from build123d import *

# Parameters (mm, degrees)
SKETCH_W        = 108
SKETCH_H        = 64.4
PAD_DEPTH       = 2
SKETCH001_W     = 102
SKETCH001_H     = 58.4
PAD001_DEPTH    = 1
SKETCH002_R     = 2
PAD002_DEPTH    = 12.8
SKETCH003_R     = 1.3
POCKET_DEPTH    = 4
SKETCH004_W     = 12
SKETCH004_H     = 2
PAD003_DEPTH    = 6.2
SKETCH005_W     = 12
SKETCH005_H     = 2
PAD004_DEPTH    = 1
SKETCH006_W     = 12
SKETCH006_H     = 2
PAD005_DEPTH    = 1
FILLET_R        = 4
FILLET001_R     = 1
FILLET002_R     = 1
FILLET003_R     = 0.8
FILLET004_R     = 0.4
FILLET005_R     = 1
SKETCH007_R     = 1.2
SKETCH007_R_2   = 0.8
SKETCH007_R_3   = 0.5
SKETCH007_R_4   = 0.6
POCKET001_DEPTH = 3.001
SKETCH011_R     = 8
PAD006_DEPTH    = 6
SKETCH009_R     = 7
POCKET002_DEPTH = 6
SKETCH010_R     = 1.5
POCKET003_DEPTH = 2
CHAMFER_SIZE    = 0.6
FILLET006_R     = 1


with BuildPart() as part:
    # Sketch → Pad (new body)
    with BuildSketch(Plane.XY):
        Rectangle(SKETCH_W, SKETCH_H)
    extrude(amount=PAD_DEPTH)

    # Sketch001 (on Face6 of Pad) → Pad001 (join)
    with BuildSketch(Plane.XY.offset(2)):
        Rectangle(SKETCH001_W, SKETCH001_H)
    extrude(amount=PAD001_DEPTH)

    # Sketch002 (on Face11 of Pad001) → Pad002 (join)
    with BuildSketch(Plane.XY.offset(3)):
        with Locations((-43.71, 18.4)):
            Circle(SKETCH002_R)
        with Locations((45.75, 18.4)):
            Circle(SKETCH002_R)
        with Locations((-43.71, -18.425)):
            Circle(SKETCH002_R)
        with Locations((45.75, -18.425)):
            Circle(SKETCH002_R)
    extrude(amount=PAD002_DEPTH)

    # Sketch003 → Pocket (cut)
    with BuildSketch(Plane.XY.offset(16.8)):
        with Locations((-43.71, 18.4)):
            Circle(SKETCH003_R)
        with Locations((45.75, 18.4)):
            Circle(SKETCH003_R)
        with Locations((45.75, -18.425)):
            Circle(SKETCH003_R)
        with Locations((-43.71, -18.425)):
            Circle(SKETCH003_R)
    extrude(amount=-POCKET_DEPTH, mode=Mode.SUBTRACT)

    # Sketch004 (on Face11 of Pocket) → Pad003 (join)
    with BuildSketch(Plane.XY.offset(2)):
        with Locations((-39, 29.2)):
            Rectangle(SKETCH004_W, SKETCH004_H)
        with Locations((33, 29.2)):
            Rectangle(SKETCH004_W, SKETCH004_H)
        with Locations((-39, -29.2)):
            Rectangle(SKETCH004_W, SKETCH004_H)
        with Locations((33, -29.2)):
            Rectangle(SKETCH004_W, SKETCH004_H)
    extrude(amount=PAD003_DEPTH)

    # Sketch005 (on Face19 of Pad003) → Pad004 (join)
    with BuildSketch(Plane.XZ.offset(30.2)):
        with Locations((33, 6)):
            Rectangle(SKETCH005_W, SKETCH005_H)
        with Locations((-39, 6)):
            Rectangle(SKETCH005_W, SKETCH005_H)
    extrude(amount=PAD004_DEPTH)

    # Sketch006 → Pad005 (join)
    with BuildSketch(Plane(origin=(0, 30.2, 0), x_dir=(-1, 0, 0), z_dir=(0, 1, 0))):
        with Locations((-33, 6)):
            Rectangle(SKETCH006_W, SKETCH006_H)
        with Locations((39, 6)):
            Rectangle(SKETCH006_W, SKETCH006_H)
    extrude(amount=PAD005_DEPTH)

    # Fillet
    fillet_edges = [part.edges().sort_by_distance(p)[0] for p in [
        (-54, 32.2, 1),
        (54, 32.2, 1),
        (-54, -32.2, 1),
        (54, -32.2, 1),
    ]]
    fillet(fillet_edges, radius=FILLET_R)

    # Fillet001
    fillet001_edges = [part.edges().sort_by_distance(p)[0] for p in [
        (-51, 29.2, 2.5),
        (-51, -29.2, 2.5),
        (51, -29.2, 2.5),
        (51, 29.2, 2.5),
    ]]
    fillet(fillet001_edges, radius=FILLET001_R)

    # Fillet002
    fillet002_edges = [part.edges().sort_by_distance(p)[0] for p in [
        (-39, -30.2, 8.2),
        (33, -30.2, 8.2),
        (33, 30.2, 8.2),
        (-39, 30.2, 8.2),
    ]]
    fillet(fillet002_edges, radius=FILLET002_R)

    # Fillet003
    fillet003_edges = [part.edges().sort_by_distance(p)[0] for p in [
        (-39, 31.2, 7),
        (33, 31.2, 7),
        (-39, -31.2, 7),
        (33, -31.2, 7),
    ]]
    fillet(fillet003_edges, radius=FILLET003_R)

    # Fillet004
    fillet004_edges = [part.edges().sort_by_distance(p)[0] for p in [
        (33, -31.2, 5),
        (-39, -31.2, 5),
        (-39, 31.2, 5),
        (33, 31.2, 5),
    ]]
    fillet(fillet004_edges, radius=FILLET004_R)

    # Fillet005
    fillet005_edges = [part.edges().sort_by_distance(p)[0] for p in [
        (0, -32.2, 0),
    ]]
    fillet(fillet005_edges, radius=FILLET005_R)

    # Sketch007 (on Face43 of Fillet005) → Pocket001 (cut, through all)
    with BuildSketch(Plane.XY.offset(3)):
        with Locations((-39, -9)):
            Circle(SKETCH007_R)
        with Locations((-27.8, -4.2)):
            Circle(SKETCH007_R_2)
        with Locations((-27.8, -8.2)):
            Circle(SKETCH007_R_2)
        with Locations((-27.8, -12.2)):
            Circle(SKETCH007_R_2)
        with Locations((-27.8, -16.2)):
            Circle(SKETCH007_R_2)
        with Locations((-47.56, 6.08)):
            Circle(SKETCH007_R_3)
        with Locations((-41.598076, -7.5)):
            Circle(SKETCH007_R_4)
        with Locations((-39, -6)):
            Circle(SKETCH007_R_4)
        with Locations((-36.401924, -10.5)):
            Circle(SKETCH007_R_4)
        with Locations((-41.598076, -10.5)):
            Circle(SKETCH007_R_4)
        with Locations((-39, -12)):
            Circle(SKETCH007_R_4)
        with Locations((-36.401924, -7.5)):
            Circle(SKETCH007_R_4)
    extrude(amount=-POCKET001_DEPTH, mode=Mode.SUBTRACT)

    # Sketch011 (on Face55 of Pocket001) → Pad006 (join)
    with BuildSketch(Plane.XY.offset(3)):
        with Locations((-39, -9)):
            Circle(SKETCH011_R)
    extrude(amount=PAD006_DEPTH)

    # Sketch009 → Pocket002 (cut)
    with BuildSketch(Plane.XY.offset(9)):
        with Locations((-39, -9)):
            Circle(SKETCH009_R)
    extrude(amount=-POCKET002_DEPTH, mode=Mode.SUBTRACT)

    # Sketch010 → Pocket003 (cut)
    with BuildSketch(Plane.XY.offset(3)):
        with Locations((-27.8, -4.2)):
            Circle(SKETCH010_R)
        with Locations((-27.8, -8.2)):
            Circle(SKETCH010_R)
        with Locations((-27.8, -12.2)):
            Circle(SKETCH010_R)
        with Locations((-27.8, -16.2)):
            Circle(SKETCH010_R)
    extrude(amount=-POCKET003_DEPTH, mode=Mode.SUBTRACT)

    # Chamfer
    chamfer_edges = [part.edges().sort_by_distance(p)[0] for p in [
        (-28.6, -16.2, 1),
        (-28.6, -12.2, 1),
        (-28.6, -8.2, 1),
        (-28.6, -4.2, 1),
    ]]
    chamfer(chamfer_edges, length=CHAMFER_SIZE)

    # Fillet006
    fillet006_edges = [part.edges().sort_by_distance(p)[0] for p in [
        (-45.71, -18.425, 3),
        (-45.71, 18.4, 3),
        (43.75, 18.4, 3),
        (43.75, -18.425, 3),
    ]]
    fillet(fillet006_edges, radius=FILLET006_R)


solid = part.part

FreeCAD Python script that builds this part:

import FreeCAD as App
import Part
import Sketcher
from FreeCAD import Vector
Q = App.Units.Quantity


def edges_at(feature, points):
    """Names of the edges that pass closest to the given points."""
    edges = feature.Shape.Edges
    near = lambda p: min(range(len(edges)), key=lambda i: edges[i].distToShape(Part.Vertex(*p))[0])
    return sorted({f"Edge{near(p) + 1}" for p in points})


def add_polygon(sketch, points):
    """Adds a closed chain of lines whose ends are joined by coincident constraints."""
    first, n = sketch.GeometryCount, len(points)
    for a, b in zip(points, points[1:] + points[:1]):
        sketch.addGeometry(Part.LineSegment(App.Vector(*a, 0), App.Vector(*b, 0)), False)
    for i in range(n):
        sketch.addConstraint(Sketcher.Constraint("Coincident", first + i, 2, first + (i + 1) % n, 1))

doc = App.newDocument("Part")
body = doc.addObject("PartDesign::Body", "Body")

sketch1 = body.newObject("Sketcher::SketchObject", "Sketch")
sketch1.AttachmentSupport = (doc.getObject("XY_Plane"), [""])
sketch1.MapMode = "FlatFace"
add_polygon(sketch1, [(-54, 32), (-54, -32), (54, -32), (54, 32)])
sketch1.addConstraint([
    Sketcher.Constraint("Vertical", 0),
    Sketcher.Constraint("Horizontal", 1),
    Sketcher.Constraint("Vertical", 2),
    Sketcher.Constraint("Horizontal", 3),
    Sketcher.Constraint("Symmetric", 0, 2, 2, 2, -1, 1),
    Sketcher.Constraint("DistanceX", 1, 1, 1, 2, Q("108 mm")),
    Sketcher.Constraint("DistanceY", 0, 2, 0, 1, Q("64.4 mm")),
])
pad1 = body.newObject("PartDesign::Pad", "Pad")
pad1.Profile = sketch1
pad1.Length = 2

sketch2 = body.newObject("Sketcher::SketchObject", "Sketch001")
sketch2.AttachmentSupport = (doc.getObject("XY_Plane"), [""])
sketch2.MapMode = "FlatFace"
sketch2.AttachmentOffset = App.Placement(Vector(0, 0, 2), App.Rotation())
add_polygon(sketch2, [(-51, 29), (-51, -29), (51, -29), (51, 29)])
sketch2.addConstraint([
    Sketcher.Constraint("Vertical", 0),
    Sketcher.Constraint("Horizontal", 1),
    Sketcher.Constraint("Vertical", 2),
    Sketcher.Constraint("Horizontal", 3),
    Sketcher.Constraint("Symmetric", 0, 2, 2, 2, -1, 1),
    Sketcher.Constraint("DistanceX", 1, 1, 1, 2, Q("102 mm")),
    Sketcher.Constraint("DistanceY", 0, 2, 0, 1, Q("58.4 mm")),
])
pad2 = body.newObject("PartDesign::Pad", "Pad001")
pad2.Profile = sketch2
pad2.Length = 1

sketch3 = body.newObject("Sketcher::SketchObject", "Sketch002")
sketch3.AttachmentSupport = (doc.getObject("XY_Plane"), [""])
sketch3.MapMode = "FlatFace"
sketch3.AttachmentOffset = App.Placement(Vector(0, 0, 3), App.Rotation())
sketch3.addGeometry([
    Part.Circle(Vector(-43.7, 18.4, 0), Vector(0, 0, 1), 2),
    Part.Circle(Vector(45.8, 18.4, 0), Vector(0, 0, 1), 2),
    Part.Circle(Vector(-43.7, -18.4, 0), Vector(0, 0, 1), 2),
    Part.Circle(Vector(45.8, -18.4, 0), Vector(0, 0, 1), 2),
], False)
sketch3.addConstraint([
    Sketcher.Constraint("Equal", 0, 1),
    Sketcher.Constraint("Equal", 1, 2),
    Sketcher.Constraint("Equal", 2, 3),
    Sketcher.Constraint("Horizontal", 0, 3, 1, 3),
    Sketcher.Constraint("Horizontal", 2, 3, 3, 3),
    Sketcher.Constraint("Vertical", 0, 3, 2, 3),
    Sketcher.Constraint("Vertical", 1, 3, 3, 3),
    Sketcher.Constraint("Diameter", 0, Q("4 mm")),
    Sketcher.Constraint("DistanceY", -1, 1, 0, 3, Q("18.4 mm")),
    Sketcher.Constraint("DistanceX", 0, 3, -1, 1, Q("43.71 mm")),
    Sketcher.Constraint("DistanceX", -1, 1, 1, 3, Q("45.75 mm")),
    Sketcher.Constraint("DistanceY", 2, 3, -1, 1, Q("18.425 mm")),
])
pad3 = body.newObject("PartDesign::Pad", "Pad002")
pad3.Profile = sketch3
pad3.Length = 12.8

sketch4 = body.newObject("Sketcher::SketchObject", "Sketch003")
sketch4.AttachmentSupport = (doc.getObject("XY_Plane"), [""])
sketch4.MapMode = "FlatFace"
sketch4.AttachmentOffset = App.Placement(Vector(0, 0, 16.8), App.Rotation())
sketch4.addGeometry([
    Part.Circle(Vector(-43.7, 18.4, 0), Vector(0, 0, 1), 1.3),
    Part.Circle(Vector(45.8, 18.4, 0), Vector(0, 0, 1), 1.3),
    Part.Circle(Vector(45.8, -18.4, 0), Vector(0, 0, 1), 1.3),
    Part.Circle(Vector(-43.7, -18.4, 0), Vector(0, 0, 1), 1.3),
], False)
sketch4.addConstraint([
    Sketcher.Constraint("Equal", 0, 1),
    Sketcher.Constraint("Equal", 1, 2),
    Sketcher.Constraint("Equal", 2, 3),
    Sketcher.Constraint("Horizontal", 0, 3, 1, 3),
    Sketcher.Constraint("Horizontal", 2, 3, 3, 3),
    Sketcher.Constraint("Vertical", 1, 3, 2, 3),
    Sketcher.Constraint("Vertical", 0, 3, 3, 3),
    Sketcher.Constraint("Diameter", 0, Q("2.6 mm")),
    Sketcher.Constraint("DistanceY", -1, 1, 0, 3, Q("18.4 mm")),
    Sketcher.Constraint("DistanceX", 0, 3, -1, 1, Q("43.71 mm")),
    Sketcher.Constraint("DistanceX", -1, 1, 1, 3, Q("45.75 mm")),
    Sketcher.Constraint("DistanceY", 2, 3, -1, 1, Q("18.425 mm")),
])
pocket1 = body.newObject("PartDesign::Pocket", "Pocket")
pocket1.Profile = sketch4
pocket1.Length = 4

sketch5 = body.newObject("Sketcher::SketchObject", "Sketch004")
sketch5.AttachmentSupport = (doc.getObject("XY_Plane"), [""])
sketch5.MapMode = "FlatFace"
sketch5.AttachmentOffset = App.Placement(Vector(0, 0, 2), App.Rotation())
add_polygon(sketch5, [(-45, 30.2), (-45, 28.2), (-33, 28.2), (-33, 30.2)])
add_polygon(sketch5, [(27, 30.2), (27, 28.2), (39, 28.2), (39, 30.2)])
add_polygon(sketch5, [(-45, -28.2), (-45, -30.2), (-33, -30.2), (-33, -28.2)])
add_polygon(sketch5, [(27, -28.2), (27, -30.2), (39, -30.2), (39, -28.2)])
sketch5.addConstraint([
    Sketcher.Constraint("Vertical", 0),
    Sketcher.Constraint("Horizontal", 1),
    Sketcher.Constraint("Vertical", 2),
    Sketcher.Constraint("Horizontal", 3),
    Sketcher.Constraint("Vertical", 4),
    Sketcher.Constraint("Horizontal", 5),
    Sketcher.Constraint("Vertical", 6),
    Sketcher.Constraint("Horizontal", 7),
    Sketcher.Constraint("Vertical", 8),
    Sketcher.Constraint("Horizontal", 9),
    Sketcher.Constraint("Vertical", 10),
    Sketcher.Constraint("Horizontal", 11),
    Sketcher.Constraint("Vertical", 12),
    Sketcher.Constraint("Horizontal", 13),
    Sketcher.Constraint("Vertical", 14),
    Sketcher.Constraint("Horizontal", 15),
    Sketcher.Constraint("Symmetric", 3, 2, 8, 2, -1),
    Sketcher.Constraint("Symmetric", 1, 2, 10, 2, -1),
    Sketcher.Constraint("Symmetric", 7, 2, 12, 2, -1),
    Sketcher.Constraint("Symmetric", 5, 2, 14, 2, -1),
    Sketcher.Constraint("Horizontal", 1, 2, 4, 2),
    Sketcher.Constraint("Horizontal", 3, 2, 6, 2),
    Sketcher.Constraint("Equal", 3, 5),
    Sketcher.Constraint("DistanceX", 1, 1, 1, 2, Q("12 mm")),
    Sketcher.Constraint("DistanceY", 0, 2, 0, 1, Q("2 mm")),
    Sketcher.Constraint("DistanceX", 0, 2, -1, 1, Q("45 mm")),
    Sketcher.Constraint("DistanceX", -1, 1, 4, 2, Q("27 mm")),
    Sketcher.Constraint("DistanceY", -1, 1, 0, 2, Q("28.2 mm")),
])
pad4 = body.newObject("PartDesign::Pad", "Pad003")
pad4.Profile = sketch5
pad4.Length = 6.2

sketch6 = body.newObject("Sketcher::SketchObject", "Sketch005")
sketch6.AttachmentSupport = (doc.getObject("XZ_Plane"), [""])
sketch6.MapMode = "FlatFace"
sketch6.AttachmentOffset = App.Placement(Vector(0, 0, 30.2), App.Rotation())
add_polygon(sketch6, [(27, 7), (27, 5), (39, 5), (39, 7)])
add_polygon(sketch6, [(-45, 7), (-45, 5), (-33, 5), (-33, 7)])
sketch6.addConstraint([
    Sketcher.Constraint("Vertical", 0),
    Sketcher.Constraint("Horizontal", 1),
    Sketcher.Constraint("Vertical", 2),
    Sketcher.Constraint("Horizontal", 3),
    Sketcher.Constraint("Vertical", 4),
    Sketcher.Constraint("Horizontal", 5),
    Sketcher.Constraint("Vertical", 6),
    Sketcher.Constraint("Horizontal", 7),
    Sketcher.Constraint("Horizontal", 1, 2, 4, 2),
    Sketcher.Constraint("Horizontal", 3, 2, 6, 2),
    Sketcher.Constraint("Equal", 3, 5),
    Sketcher.Constraint("DistanceX", 1, 1, 1, 2, Q("12 mm")),
    Sketcher.Constraint("DistanceY", 0, 2, 0, 1, Q("2 mm")),
    Sketcher.Constraint("DistanceX", -1, 1, 0, 2, Q("27 mm")),
    Sketcher.Constraint("DistanceY", -1, 1, 0, 2, Q("5 mm")),
    Sketcher.Constraint("DistanceX", 4, 2, -1, 1, Q("45 mm")),
])
pad5 = body.newObject("PartDesign::Pad", "Pad004")
pad5.Profile = sketch6
pad5.Length = 1

sketch7 = body.newObject("Sketcher::SketchObject", "Sketch006")
sketch7.AttachmentSupport = (doc.getObject("XZ_Plane"), [""])
sketch7.MapMode = "FlatFace"
sketch7.AttachmentOffset = App.Placement(Vector(0, 0, -30.2), App.Rotation())
add_polygon(sketch7, [(39, 7), (39, 5), (27, 5), (27, 7)])
add_polygon(sketch7, [(-33, 7), (-33, 5), (-45, 5), (-45, 7)])
sketch7.addConstraint([
    Sketcher.Constraint("Vertical", 0),
    Sketcher.Constraint("Horizontal", 1),
    Sketcher.Constraint("Vertical", 2),
    Sketcher.Constraint("Horizontal", 3),
    Sketcher.Constraint("Vertical", 4),
    Sketcher.Constraint("Horizontal", 5),
    Sketcher.Constraint("Vertical", 6),
    Sketcher.Constraint("Horizontal", 7),
    Sketcher.Constraint("Horizontal", 1, 2, 4, 2),
    Sketcher.Constraint("Horizontal", 3, 2, 6, 2),
    Sketcher.Constraint("Equal", 3, 5),
    Sketcher.Constraint("DistanceX", 1, 2, 1, 1, Q("12 mm")),
    Sketcher.Constraint("DistanceY", 0, 2, 0, 1, Q("2 mm")),
    Sketcher.Constraint("DistanceX", -1, 1, 0, 2, Q("39 mm")),
    Sketcher.Constraint("DistanceY", -1, 1, 0, 2, Q("5 mm")),
    Sketcher.Constraint("DistanceX", 4, 2, -1, 1, Q("33 mm")),
])
pad6 = body.newObject("PartDesign::Pad", "Pad005")
pad6.Profile = sketch7
pad6.Length = 1
pad6.Reversed = True
doc.recompute()

fillet = body.newObject("PartDesign::Fillet", "Fillet")
fillet.Base = (pad6, edges_at(pad6, [
    (-54, 32.2, 1),
    (54, 32.2, 1),
    (-54, -32.2, 1),
    (54, -32.2, 1),
]))
fillet.Radius = 4
doc.recompute()

fillet2 = body.newObject("PartDesign::Fillet", "Fillet001")
fillet2.Base = (fillet, edges_at(fillet, [
    (-51, 29.2, 2.5),
    (-51, -29.2, 2.5),
    (51, -29.2, 2.5),
    (51, 29.2, 2.5),
]))
fillet2.Radius = 1
doc.recompute()

fillet3 = body.newObject("PartDesign::Fillet", "Fillet002")
fillet3.Base = (fillet2, edges_at(fillet2, [
    (-39, -30.2, 8.2),
    (33, -30.2, 8.2),
    (33, 30.2, 8.2),
    (-39, 30.2, 8.2),
]))
fillet3.Radius = 1
doc.recompute()

fillet4 = body.newObject("PartDesign::Fillet", "Fillet003")
fillet4.Base = (fillet3, edges_at(fillet3, [
    (-39, 31.2, 7),
    (33, 31.2, 7),
    (-39, -31.2, 7),
    (33, -31.2, 7),
]))
fillet4.Radius = 0.8
doc.recompute()

fillet5 = body.newObject("PartDesign::Fillet", "Fillet004")
fillet5.Base = (fillet4, edges_at(fillet4, [
    (33, -31.2, 5),
    (-39, -31.2, 5),
    (-39, 31.2, 5),
    (33, 31.2, 5),
]))
fillet5.Radius = 0.4
doc.recompute()

fillet6 = body.newObject("PartDesign::Fillet", "Fillet005")
fillet6.Base = (fillet5, edges_at(fillet5, [(0, -32.2, 0)]))
fillet6.Radius = 1

sketch8 = body.newObject("Sketcher::SketchObject", "Sketch007")
sketch8.AttachmentSupport = (doc.getObject("XY_Plane"), [""])
sketch8.MapMode = "FlatFace"
sketch8.AttachmentOffset = App.Placement(Vector(0, 0, 3), App.Rotation())
sketch8.addGeometry([
    Part.Circle(Vector(-39, -9, 0), Vector(0, 0, 1), 1.2),
    Part.Circle(Vector(-27.8, -4.2, 0), Vector(0, 0, 1), 0.8),
    Part.Circle(Vector(-27.8, -8.2, 0), Vector(0, 0, 1), 0.8),
    Part.Circle(Vector(-27.8, -12.2, 0), Vector(0, 0, 1), 0.8),
    Part.Circle(Vector(-27.8, -16.2, 0), Vector(0, 0, 1), 0.8),
    Part.Circle(Vector(-47.6, 6.1, 0), Vector(0, 0, 1), 0.5),
    Part.Circle(Vector(-41.6, -7.5, 0), Vector(0, 0, 1), 0.6),
    Part.Circle(Vector(-39, -6, 0), Vector(0, 0, 1), 0.6),
    Part.Circle(Vector(-36.4, -10.5, 0), Vector(0, 0, 1), 0.6),
    Part.Circle(Vector(-41.6, -10.5, 0), Vector(0, 0, 1), 0.6),
    Part.Circle(Vector(-39, -12, 0), Vector(0, 0, 1), 0.6),
    Part.Circle(Vector(-36.4, -7.5, 0), Vector(0, 0, 1), 0.6),
], False)
sketch8.addConstraint([
    Sketcher.Constraint("Equal", 1, 2),
    Sketcher.Constraint("Equal", 2, 3),
    Sketcher.Constraint("Equal", 3, 4),
    Sketcher.Constraint("Equal", 6, 7),
    Sketcher.Constraint("Equal", 7, 8),
    Sketcher.Constraint("Equal", 8, 9),
    Sketcher.Constraint("Equal", 9, 10),
    Sketcher.Constraint("Equal", 10, 11),
    Sketcher.Constraint("Horizontal", 8, 3, 9, 3),
    Sketcher.Constraint("Horizontal", 6, 3, 11, 3),
    Sketcher.Constraint("Vertical", 1, 3, 2, 3),
    Sketcher.Constraint("Vertical", 2, 3, 3, 3),
    Sketcher.Constraint("Vertical", 3, 3, 4, 3),
    Sketcher.Constraint("Vertical", 0, 3, 7, 3),
    Sketcher.Constraint("Vertical", 6, 3, 9, 3),
    Sketcher.Constraint("Vertical", 7, 3, 10, 3),
    Sketcher.Constraint("Vertical", 8, 3, 11, 3),
    Sketcher.Constraint("Diameter", 5, Q("1 mm")),
    Sketcher.Constraint("Diameter", 0, Q("2.4 mm")),
    Sketcher.Constraint("Diameter", 1, Q("1.6 mm")),
    Sketcher.Constraint("Diameter", 6, Q("1.2 mm")),
    Sketcher.Constraint("DistanceX", 0, 3, -1, 1, Q("39 mm")),
    Sketcher.Constraint("DistanceY", 0, 3, -1, 1, Q("9 mm")),
    Sketcher.Constraint("DistanceY", 7, 3, -1, 1, Q("6 mm")),
    Sketcher.Constraint("DistanceY", 10, 3, -1, 1, Q("12 mm")),
    Sketcher.Constraint("DistanceY", 2, 3, 1, 3, Q("4 mm")),
    Sketcher.Constraint("DistanceY", 3, 3, 2, 3, Q("4 mm")),
    Sketcher.Constraint("DistanceY", 4, 3, 3, 3, Q("4 mm")),
    Sketcher.Constraint("DistanceY", 8, 3, 6, 3, Q("3 mm")),
    Sketcher.Constraint("DistanceX", 1, 3, -1, 1, Q("27.8 mm")),
    Sketcher.Constraint("DistanceY", 1, 3, -1, 1, Q("4.2 mm")),
    Sketcher.Constraint("DistanceY", 6, 3, -1, 1, Q("7.5 mm")),
    Sketcher.Constraint("DistanceX", 5, 3, -1, 1, Q("47.56 mm")),
    Sketcher.Constraint("DistanceY", -1, 1, 5, 3, Q("6.08 mm")),
    Sketcher.Constraint("DistanceX", 6, 3, 8, 3, Q("5.196152 mm")),
    Sketcher.Constraint("DistanceX", 6, 3, -1, 1, Q("41.598076 mm")),
])
pocket2 = body.newObject("PartDesign::Pocket", "Pocket001")
pocket2.Profile = sketch8
pocket2.Type = "ThroughAll"

sketch9 = body.newObject("Sketcher::SketchObject", "Sketch008")
sketch9.AttachmentSupport = (doc.getObject("XY_Plane"), [""])
sketch9.MapMode = "FlatFace"
sketch9.AttachmentOffset = App.Placement(Vector(0, 0, 3), App.Rotation())
sketch9.addGeometry(Part.Circle(Vector(-39, -9, 0), Vector(0, 0, 1), 8), False)
sketch9.addConstraint([
    Sketcher.Constraint("Diameter", 0, Q("16 mm")),
    Sketcher.Constraint("DistanceX", 0, 3, -1, 1, Q("39 mm")),
    Sketcher.Constraint("DistanceY", 0, 3, -1, 1, Q("9 mm")),
])
pad7 = body.newObject("PartDesign::Pad", "Pad006")
pad7.Profile = sketch9
pad7.Length = 6

sketch10 = body.newObject("Sketcher::SketchObject", "Sketch009")
sketch10.AttachmentSupport = (doc.getObject("XY_Plane"), [""])
sketch10.MapMode = "FlatFace"
sketch10.AttachmentOffset = App.Placement(Vector(0, 0, 9), App.Rotation())
sketch10.addGeometry(Part.Circle(Vector(-39, -9, 0), Vector(0, 0, 1), 7), False)
sketch10.addConstraint([
    Sketcher.Constraint("Diameter", 0, Q("14 mm")),
    Sketcher.Constraint("DistanceX", 0, 3, -1, 1, Q("39 mm")),
    Sketcher.Constraint("DistanceY", 0, 3, -1, 1, Q("9 mm")),
])
pocket3 = body.newObject("PartDesign::Pocket", "Pocket002")
pocket3.Profile = sketch10
pocket3.Length = 6

sketch11 = body.newObject("Sketcher::SketchObject", "Sketch010")
sketch11.AttachmentSupport = (doc.getObject("XY_Plane"), [""])
sketch11.MapMode = "FlatFace"
sketch11.AttachmentOffset = App.Placement(Vector(0, 0, 3), App.Rotation())
sketch11.addGeometry([
    Part.Circle(Vector(-27.8, -4.2, 0), Vector(0, 0, 1), 1.5),
    Part.Circle(Vector(-27.8, -8.2, 0), Vector(0, 0, 1), 1.5),
    Part.Circle(Vector(-27.8, -12.2, 0), Vector(0, 0, 1), 1.5),
    Part.Circle(Vector(-27.8, -16.2, 0), Vector(0, 0, 1), 1.5),
], False)
sketch11.addConstraint([
    Sketcher.Constraint("Equal", 0, 1),
    Sketcher.Constraint("Equal", 1, 2),
    Sketcher.Constraint("Equal", 2, 3),
    Sketcher.Constraint("Vertical", 0, 3, 1, 3),
    Sketcher.Constraint("Vertical", 1, 3, 2, 3),
    Sketcher.Constraint("Vertical", 2, 3, 3, 3),
    Sketcher.Constraint("Diameter", 0, Q("3 mm")),
    Sketcher.Constraint("DistanceY", 1, 3, 0, 3, Q("4 mm")),
    Sketcher.Constraint("DistanceY", 2, 3, 1, 3, Q("4 mm")),
    Sketcher.Constraint("DistanceY", 3, 3, 2, 3, Q("4 mm")),
    Sketcher.Constraint("DistanceX", 0, 3, -1, 1, Q("27.8 mm")),
    Sketcher.Constraint("DistanceY", 0, 3, -1, 1, Q("4.2 mm")),
])
pocket4 = body.newObject("PartDesign::Pocket", "Pocket003")
pocket4.Profile = sketch11
pocket4.Length = 2
doc.recompute()

chamfer = body.newObject("PartDesign::Chamfer", "Chamfer")
chamfer.Base = (pocket4, edges_at(pocket4, [
    (-28.6, -16.2, 1),
    (-28.6, -12.2, 1),
    (-28.6, -8.2, 1),
    (-28.6, -4.2, 1),
]))
chamfer.Size = 0.6
doc.recompute()

fillet7 = body.newObject("PartDesign::Fillet", "Fillet006")
fillet7.Base = (chamfer, edges_at(chamfer, [
    (-45.71, -18.425, 3),
    (-45.71, 18.4, 3),
    (43.75, 18.4, 3),
    (43.75, -18.425, 3),
]))
fillet7.Radius = 1

doc.recompute()
